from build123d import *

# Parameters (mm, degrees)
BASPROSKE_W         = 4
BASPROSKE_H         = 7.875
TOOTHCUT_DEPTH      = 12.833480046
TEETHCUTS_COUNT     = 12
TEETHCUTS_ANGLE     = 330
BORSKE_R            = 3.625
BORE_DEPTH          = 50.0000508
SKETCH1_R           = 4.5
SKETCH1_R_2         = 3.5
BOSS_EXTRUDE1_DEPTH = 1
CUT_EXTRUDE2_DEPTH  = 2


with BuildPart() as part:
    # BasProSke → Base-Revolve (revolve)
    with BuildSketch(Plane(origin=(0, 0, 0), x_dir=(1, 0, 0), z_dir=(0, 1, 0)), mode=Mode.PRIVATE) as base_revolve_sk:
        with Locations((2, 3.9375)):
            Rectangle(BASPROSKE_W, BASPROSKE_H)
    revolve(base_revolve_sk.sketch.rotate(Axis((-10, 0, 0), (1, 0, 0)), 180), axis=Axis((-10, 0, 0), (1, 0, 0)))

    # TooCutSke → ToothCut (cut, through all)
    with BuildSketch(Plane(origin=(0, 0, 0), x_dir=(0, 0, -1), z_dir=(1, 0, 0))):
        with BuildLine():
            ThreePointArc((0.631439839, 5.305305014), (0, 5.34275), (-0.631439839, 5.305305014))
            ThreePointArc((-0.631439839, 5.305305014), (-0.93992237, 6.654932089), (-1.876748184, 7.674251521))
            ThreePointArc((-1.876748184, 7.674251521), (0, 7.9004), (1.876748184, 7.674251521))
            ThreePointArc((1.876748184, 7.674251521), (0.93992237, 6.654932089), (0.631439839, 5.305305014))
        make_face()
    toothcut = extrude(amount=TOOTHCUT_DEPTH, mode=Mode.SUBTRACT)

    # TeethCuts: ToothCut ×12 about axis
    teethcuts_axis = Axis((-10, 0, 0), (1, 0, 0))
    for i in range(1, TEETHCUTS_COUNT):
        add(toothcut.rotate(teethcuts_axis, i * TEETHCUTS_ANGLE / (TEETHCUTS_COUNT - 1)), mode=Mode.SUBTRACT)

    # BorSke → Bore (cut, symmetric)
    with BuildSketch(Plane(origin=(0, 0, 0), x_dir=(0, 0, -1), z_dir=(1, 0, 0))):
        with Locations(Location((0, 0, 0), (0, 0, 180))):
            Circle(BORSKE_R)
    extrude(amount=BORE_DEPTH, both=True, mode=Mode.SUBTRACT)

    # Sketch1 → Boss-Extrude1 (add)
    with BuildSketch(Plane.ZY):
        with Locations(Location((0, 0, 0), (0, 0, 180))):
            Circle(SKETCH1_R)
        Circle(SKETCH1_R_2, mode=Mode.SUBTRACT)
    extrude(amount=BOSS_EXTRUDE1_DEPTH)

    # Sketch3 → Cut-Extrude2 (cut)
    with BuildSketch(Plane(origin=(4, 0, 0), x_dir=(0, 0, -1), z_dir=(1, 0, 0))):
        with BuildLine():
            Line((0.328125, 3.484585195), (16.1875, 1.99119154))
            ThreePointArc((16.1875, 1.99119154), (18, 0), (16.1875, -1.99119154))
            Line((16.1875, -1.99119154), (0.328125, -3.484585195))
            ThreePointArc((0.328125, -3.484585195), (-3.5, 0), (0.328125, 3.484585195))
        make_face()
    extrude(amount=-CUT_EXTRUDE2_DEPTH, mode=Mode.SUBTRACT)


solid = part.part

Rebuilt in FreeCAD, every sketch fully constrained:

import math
import FreeCAD as App
import Part
import Sketcher
Q = App.Units.Quantity

doc = App.newDocument("Part")
body = doc.addObject("PartDesign::Body", "Body")

# Sketch on XZ plane
sketch1 = body.newObject("Sketcher::SketchObject", "Sketch")
sketch1.AttachmentSupport = (doc.getObject("XZ_Plane"), [""])
sketch1.MapMode = "FlatFace"
sketch1.addGeometry([
    Part.LineSegment(App.Vector(0, -7.9, 0), App.Vector(0, 0, 0)),
    Part.LineSegment(App.Vector(0, 0, 0), App.Vector(4, 0, 0)),
    Part.LineSegment(App.Vector(4, 0, 0), App.Vector(4, -7.9, 0)),
    Part.LineSegment(App.Vector(4, -7.9, 0), App.Vector(0, -7.9, 0)),
], False)
sketch1.addConstraint([
    Sketcher.Constraint("Coincident", 0, 2, 1, 1),
    Sketcher.Constraint("Coincident", 1, 2, 2, 1),
    Sketcher.Constraint("Coincident", 2, 2, 3, 1),
    Sketcher.Constraint("Coincident", 3, 2, 0, 1),
    Sketcher.Constraint("Vertical", 0),
    Sketcher.Constraint("Horizontal", 1),
    Sketcher.Constraint("Vertical", 2),
    Sketcher.Constraint("Horizontal", 3),
    Sketcher.Constraint("Coincident", 0, 2, -1, 1),
    Sketcher.Constraint("DistanceX", 1, 1, 1, 2, Q("4 mm")),
    Sketcher.Constraint("DistanceY", 0, 1, 0, 2, Q("7.875 mm")),
])
revolution = body.newObject("PartDesign::Revolution", "Revolution")
revolution.Profile = sketch1
revolution.ReferenceAxis = (sketch1, ["H_Axis"])
revolution.Angle = 360

# Sketch on YZ plane
sketch2 = body.newObject("Sketcher::SketchObject", "Sketch001")
sketch2.AttachmentSupport = (doc.getObject("YZ_Plane"), [""])
sketch2.MapMode = "FlatFace"
sketch2.addGeometry([
    Part.ArcOfCircle(Part.Circle(App.Vector(0, 0, 0), App.Vector(0, 0, 1), 5.3), math.radians(-6.79), math.radians(6.79)),
    Part.ArcOfCircle(Part.Circle(App.Vector(5.4, -3.3, 0), App.Vector(0, 0, 1), 2.7), math.radians(33), math.radians(92)),
    Part.ArcOfCircle(Part.Circle(App.Vector(0, 0, 0), App.Vector(0, 0, 1), 7.9), math.radians(-14), math.radians(14)),
    Part.ArcOfCircle(Part.Circle(App.Vector(5.4, 3.3, 0), App.Vector(0, 0, 1), 2.7), math.radians(-92), math.radians(-33)),
], False)
sketch2.addConstraint([
    Sketcher.Constraint("Coincident", 0, 1, 1, 2),
    Sketcher.Constraint("Coincident", 1, 1, 2, 1),
    Sketcher.Constraint("Coincident", 2, 2, 3, 2),
    Sketcher.Constraint("Coincident", 3, 1, 0, 2),
    Sketcher.Constraint("Coincident", 0, 3, -1, 1),
    Sketcher.Constraint("Coincident", 2, 3, -1, 1),
    Sketcher.Constraint("Equal", 1, 3),
    Sketcher.Constraint("Symmetric", 1, 3, 3, 3, -1),
    Sketcher.Constraint("Radius", 1, Q("2.7 mm")),
    Sketcher.Constraint("Radius", 2, Q("7.9004 mm")),
    Sketcher.Constraint("Radius", 0, Q("5.34275 mm")),
    Sketcher.Constraint("DistanceX", 0, 1, 1, 3, Q("0.093301 mm")),
    Sketcher.Constraint("DistanceY", 0, 1, -1, 1, Q("0.63144 mm")),
])
pocket1 = body.newObject("PartDesign::Pocket", "Pocket")
pocket1.Profile = sketch2
pocket1.Type = "ThroughAll"
pocket1.Reversed = True
doc.recompute()

polarpattern = body.newObject("PartDesign::PolarPattern", "PolarPattern")
polarpattern.Originals = [pocket1]
polarpattern.Axis = (doc.getObject("X_Axis"), [""])
polarpattern.Angle = 360
polarpattern.Occurrences = 12
body.Tip = polarpattern

# Sketch on YZ plane
sketch3 = body.newObject("Sketcher::SketchObject", "Sketch002")
sketch3.AttachmentSupport = (doc.getObject("YZ_Plane"), [""])
sketch3.MapMode = "FlatFace"
sketch3.addGeometry(Part.Circle(App.Vector(0, 0, 0), App.Vector(0, 0, 1), 3.6), False)
sketch3.addConstraint([
    Sketcher.Constraint("Coincident", 0, 3, -1, 1),
    Sketcher.Constraint("Diameter", 0, Q("7.25 mm")),
])
pocket2 = body.newObject("PartDesign::Pocket", "Pocket001")
pocket2.Profile = sketch3
pocket2.Length = 100.000102
pocket2.Midplane = True

# Sketch on YZ plane
sketch4 = body.newObject("Sketcher::SketchObject", "Sketch003")
sketch4.AttachmentSupport = (doc.getObject("YZ_Plane"), [""])
sketch4.MapMode = "FlatFace"
sketch4.addGeometry([
    Part.Circle(App.Vector(0, 0, 0), App.Vector(0, 0, 1), 4.5),
    Part.Circle(App.Vector(0, 0, 0), App.Vector(0, 0, 1), 3.5),
], False)
sketch4.addConstraint([
    Sketcher.Constraint("Coincident", 0, 3, -1, 1),
    Sketcher.Constraint("Coincident", 1, 3, -1, 1),
    Sketcher.Constraint("Diameter", 0, Q("9 mm")),
    Sketcher.Constraint("Diameter", 1, Q("7 mm")),
])
pad1 = body.newObject("PartDesign::Pad", "Pad")
pad1.Profile = sketch4
pad1.Length = 1
pad1.Reversed = True

# Sketch on YZ plane
sketch5 = body.newObject("Sketcher::SketchObject", "Sketch004")
sketch5.AttachmentSupport = (doc.getObject("YZ_Plane"), [""])
sketch5.MapMode = "FlatFace"
sketch5.AttachmentOffset = App.Placement(App.Vector(0, 0, 4), App.Rotation())
sketch5.addGeometry([
    Part.LineSegment(App.Vector(2, -16.2, 0), App.Vector(3.5, -0.3, 0)),
    Part.ArcOfCircle(Part.Circle(App.Vector(0, 0, 0), App.Vector(0, 0, 1), 3.5), math.radians(-5), math.radians(185)),
    Part.LineSegment(App.Vector(-3.5, -0.3, 0), App.Vector(-2, -16.2, 0)),
    Part.ArcOfCircle(Part.Circle(App.Vector(0, -16, 0), App.Vector(0, 0, 1), 2), math.radians(-175), math.radians(-5)),
], False)
sketch5.addConstraint([
    Sketcher.Constraint("Tangent", 0, 2, 1, 1),
    Sketcher.Constraint("Tangent", 1, 2, 2, 1),
    Sketcher.Constraint("Tangent", 2, 2, 3, 1),
    Sketcher.Constraint("Tangent", 3, 2, 0, 1),
    Sketcher.Constraint("Coincident", 1, 3, -1, 1),
    Sketcher.Constraint("PointOnObject", 3, 3, -2),
    Sketcher.Constraint("Radius", 3, Q("2 mm")),
    Sketcher.Constraint("Radius", 1, Q("3.5 mm")),
    Sketcher.Constraint("DistanceY", 3, 3, -1, 1, Q("16 mm")),
])
pocket3 = body.newObject("PartDesign::Pocket", "Pocket002")
pocket3.Profile = sketch5
pocket3.Length = 2

doc.recompute()
